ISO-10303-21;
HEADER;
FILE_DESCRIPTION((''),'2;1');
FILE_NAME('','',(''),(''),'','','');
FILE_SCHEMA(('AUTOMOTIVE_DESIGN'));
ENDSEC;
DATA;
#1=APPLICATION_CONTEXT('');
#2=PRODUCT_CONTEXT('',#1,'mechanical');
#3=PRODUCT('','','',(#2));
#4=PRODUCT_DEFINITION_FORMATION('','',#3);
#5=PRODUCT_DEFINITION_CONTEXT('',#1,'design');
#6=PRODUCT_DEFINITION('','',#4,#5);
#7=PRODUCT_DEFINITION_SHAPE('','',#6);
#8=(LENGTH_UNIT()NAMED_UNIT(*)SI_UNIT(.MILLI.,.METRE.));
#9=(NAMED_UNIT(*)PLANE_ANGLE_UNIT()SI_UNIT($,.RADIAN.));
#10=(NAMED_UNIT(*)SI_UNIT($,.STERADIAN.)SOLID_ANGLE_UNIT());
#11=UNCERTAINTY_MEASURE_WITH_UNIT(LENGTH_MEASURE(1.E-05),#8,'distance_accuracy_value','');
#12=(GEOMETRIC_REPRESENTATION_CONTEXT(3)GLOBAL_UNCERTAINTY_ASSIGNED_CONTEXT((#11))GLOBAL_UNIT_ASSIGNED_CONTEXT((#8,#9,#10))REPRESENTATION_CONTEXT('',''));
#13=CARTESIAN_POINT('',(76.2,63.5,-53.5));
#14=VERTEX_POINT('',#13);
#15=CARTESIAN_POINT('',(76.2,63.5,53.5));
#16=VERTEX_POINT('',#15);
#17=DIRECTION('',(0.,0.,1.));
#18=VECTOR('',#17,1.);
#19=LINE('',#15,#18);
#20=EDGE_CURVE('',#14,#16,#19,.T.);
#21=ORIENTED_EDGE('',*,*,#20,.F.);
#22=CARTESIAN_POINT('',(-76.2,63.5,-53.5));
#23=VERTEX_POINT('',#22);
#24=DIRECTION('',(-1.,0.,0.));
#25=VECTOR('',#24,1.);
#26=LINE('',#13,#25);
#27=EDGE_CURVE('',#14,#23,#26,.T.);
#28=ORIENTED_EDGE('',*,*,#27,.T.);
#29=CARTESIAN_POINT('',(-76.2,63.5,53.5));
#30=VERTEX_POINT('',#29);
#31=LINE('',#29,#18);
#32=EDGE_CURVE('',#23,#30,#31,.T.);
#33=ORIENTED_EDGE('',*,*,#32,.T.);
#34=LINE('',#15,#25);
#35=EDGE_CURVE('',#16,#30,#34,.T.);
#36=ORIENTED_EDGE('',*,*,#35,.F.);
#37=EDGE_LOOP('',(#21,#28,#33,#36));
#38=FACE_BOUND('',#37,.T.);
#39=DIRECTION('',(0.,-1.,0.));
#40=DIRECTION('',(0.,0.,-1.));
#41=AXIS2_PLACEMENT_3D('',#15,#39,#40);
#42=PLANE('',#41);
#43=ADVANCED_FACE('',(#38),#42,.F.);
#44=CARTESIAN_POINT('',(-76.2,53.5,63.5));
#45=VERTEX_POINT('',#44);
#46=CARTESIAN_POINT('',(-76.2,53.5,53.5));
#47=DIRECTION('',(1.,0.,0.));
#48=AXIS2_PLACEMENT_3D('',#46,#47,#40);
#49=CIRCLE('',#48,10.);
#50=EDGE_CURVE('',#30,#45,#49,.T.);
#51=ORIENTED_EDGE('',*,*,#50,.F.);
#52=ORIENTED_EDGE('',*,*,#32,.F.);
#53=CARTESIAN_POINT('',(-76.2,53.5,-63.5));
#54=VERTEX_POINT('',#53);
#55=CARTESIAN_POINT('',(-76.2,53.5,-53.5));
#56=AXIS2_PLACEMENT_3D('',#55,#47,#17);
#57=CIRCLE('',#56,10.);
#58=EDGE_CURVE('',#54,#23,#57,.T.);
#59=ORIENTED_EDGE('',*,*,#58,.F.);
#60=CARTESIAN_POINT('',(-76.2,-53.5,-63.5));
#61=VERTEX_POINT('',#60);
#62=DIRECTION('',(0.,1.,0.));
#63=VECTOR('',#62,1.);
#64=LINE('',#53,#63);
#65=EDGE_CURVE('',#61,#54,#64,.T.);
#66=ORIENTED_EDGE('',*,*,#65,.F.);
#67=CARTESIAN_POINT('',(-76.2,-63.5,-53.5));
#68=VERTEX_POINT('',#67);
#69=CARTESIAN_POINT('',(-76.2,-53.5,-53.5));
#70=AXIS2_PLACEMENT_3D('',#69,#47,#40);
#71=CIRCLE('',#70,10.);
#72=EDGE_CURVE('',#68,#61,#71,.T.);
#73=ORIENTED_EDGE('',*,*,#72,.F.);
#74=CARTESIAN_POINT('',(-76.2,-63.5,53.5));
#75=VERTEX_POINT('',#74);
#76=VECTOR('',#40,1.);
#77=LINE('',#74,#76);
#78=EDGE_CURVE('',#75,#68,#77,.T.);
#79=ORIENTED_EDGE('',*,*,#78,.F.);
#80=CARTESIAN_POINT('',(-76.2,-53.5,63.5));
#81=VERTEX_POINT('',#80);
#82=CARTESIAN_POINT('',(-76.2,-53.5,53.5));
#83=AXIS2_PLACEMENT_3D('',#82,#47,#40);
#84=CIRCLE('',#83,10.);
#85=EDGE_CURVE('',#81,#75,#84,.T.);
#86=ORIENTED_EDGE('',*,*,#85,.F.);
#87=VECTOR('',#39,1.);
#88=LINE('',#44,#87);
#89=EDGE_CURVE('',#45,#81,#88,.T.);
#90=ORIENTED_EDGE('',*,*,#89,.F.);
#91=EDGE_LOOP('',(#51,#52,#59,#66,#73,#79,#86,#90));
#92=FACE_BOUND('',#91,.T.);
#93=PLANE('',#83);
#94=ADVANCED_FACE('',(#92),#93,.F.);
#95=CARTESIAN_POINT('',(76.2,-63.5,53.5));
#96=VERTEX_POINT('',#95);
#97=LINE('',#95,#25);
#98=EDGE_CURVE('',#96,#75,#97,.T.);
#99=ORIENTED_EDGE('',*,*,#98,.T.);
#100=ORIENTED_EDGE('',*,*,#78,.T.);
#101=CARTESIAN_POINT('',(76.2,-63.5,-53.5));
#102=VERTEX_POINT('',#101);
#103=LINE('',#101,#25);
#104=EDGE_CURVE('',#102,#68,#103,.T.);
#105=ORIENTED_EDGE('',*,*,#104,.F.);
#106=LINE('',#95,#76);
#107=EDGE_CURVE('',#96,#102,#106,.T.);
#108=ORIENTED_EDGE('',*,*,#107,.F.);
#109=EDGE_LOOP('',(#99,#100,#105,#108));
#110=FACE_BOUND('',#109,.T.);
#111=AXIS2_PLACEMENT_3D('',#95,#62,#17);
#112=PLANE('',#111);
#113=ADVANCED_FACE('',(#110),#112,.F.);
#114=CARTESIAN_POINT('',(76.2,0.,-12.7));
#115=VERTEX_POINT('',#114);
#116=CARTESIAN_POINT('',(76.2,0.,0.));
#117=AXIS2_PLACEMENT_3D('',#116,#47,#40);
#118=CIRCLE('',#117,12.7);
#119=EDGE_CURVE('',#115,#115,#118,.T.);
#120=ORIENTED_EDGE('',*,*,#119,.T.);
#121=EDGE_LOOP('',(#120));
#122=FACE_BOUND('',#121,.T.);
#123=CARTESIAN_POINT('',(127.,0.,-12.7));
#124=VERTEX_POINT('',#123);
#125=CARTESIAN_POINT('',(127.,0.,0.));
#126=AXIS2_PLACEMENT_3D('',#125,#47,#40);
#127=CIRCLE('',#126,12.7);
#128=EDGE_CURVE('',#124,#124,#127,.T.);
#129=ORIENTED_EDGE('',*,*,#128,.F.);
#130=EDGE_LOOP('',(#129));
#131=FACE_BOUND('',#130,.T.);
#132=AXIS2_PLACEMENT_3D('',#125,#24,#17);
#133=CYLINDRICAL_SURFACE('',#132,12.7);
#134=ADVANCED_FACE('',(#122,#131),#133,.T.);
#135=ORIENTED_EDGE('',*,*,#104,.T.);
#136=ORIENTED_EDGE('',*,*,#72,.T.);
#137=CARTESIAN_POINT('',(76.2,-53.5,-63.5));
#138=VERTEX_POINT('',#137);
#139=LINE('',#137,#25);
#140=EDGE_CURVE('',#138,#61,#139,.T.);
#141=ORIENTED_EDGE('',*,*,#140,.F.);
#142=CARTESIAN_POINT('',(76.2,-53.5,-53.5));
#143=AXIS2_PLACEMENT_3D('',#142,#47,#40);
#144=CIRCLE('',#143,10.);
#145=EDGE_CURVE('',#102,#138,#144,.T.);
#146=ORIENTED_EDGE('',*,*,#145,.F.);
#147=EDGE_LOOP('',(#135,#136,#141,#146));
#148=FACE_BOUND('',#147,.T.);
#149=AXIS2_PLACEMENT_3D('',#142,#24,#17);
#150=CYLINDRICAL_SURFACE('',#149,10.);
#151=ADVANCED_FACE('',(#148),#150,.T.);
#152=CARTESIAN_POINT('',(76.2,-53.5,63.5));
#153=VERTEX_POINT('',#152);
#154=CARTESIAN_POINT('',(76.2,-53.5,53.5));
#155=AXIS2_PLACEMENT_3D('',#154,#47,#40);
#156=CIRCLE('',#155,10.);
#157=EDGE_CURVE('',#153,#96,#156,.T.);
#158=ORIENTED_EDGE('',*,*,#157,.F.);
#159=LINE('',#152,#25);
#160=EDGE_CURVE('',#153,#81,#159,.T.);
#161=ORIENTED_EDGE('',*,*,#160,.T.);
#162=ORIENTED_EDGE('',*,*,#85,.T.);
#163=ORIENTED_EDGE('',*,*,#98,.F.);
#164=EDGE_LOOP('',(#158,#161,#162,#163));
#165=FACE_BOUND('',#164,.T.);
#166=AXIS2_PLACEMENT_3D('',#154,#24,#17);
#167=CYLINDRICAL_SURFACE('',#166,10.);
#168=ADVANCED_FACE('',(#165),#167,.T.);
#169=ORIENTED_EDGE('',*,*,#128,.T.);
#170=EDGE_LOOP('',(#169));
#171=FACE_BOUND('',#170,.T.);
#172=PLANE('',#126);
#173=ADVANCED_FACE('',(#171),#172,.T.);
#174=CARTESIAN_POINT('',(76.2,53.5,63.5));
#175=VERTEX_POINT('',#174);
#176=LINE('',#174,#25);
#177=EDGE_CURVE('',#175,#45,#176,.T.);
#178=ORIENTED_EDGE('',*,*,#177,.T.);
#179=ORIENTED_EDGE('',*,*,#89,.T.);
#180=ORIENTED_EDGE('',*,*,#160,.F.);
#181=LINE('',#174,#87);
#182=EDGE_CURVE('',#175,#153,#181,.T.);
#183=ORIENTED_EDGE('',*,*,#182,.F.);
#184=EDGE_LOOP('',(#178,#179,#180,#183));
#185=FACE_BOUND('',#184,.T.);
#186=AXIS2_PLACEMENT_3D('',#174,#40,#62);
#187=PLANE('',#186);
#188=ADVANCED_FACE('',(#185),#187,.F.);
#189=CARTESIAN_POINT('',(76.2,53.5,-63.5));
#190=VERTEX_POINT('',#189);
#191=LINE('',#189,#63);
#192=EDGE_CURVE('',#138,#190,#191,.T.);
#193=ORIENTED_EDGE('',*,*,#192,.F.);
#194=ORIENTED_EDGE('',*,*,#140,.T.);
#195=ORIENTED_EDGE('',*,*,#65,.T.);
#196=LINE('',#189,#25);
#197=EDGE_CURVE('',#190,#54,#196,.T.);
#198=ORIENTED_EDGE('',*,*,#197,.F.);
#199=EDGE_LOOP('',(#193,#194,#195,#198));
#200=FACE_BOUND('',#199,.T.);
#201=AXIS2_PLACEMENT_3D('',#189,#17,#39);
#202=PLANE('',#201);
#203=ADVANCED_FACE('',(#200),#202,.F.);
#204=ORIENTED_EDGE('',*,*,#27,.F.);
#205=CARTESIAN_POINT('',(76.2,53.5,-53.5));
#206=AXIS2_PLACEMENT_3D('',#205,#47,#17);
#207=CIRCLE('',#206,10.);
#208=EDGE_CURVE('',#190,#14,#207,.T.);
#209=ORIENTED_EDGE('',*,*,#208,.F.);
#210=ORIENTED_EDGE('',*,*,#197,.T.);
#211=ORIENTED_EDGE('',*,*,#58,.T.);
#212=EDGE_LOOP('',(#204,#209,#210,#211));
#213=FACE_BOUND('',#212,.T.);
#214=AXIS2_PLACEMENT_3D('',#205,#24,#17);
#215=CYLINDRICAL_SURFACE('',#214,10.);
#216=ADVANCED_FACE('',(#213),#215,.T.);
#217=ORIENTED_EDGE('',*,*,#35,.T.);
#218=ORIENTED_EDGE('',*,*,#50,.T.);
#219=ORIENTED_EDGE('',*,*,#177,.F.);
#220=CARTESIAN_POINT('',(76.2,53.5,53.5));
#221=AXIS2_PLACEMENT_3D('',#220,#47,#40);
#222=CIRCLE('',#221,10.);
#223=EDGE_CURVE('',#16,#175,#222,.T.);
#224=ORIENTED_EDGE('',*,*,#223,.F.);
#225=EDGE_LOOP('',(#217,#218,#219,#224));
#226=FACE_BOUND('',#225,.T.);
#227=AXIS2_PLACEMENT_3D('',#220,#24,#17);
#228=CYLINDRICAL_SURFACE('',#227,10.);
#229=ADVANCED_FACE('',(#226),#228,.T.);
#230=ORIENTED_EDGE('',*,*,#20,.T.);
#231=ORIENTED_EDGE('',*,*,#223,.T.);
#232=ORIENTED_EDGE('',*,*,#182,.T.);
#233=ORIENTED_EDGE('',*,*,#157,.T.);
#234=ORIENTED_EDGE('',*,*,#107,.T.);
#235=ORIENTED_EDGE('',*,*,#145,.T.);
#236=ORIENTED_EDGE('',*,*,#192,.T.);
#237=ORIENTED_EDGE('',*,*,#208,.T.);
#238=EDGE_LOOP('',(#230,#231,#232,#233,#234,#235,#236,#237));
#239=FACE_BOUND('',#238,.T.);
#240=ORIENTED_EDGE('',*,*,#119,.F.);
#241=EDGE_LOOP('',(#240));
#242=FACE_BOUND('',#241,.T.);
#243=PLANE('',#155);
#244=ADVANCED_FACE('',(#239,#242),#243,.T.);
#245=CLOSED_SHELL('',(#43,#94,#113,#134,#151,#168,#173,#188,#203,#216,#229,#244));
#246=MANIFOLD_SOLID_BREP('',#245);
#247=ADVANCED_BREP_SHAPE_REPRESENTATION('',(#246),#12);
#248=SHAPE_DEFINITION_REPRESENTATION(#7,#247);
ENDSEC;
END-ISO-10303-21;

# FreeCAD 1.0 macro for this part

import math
import FreeCAD as App
import Part
import Sketcher
from FreeCAD import Vector
Q = App.Units.Quantity

doc = App.newDocument("Part")
body = doc.addObject("PartDesign::Body", "Body")

sketch1 = doc.addObject("Sketcher::SketchObject", "Sketch")
body.addObject(sketch1)
sketch1.AttachmentSupport = (doc.YZ_Plane, [""])
sketch1.MapMode = "FlatFace"
sketch1.addGeometry(Part.LineSegment(Vector(64, -54, 0), Vector(64, 54, 0)), False)
sketch1.addGeometry(Part.ArcOfCircle(Part.Circle(Vector(54, 54, 0), Vector(0, 0, 1), 10), math.radians(0), math.radians(90)), False)
sketch1.addGeometry(Part.LineSegment(Vector(54, 64, 0), Vector(-54, 64, 0)), False)
sketch1.addGeometry(Part.ArcOfCircle(Part.Circle(Vector(-54, 54, 0), Vector(0, 0, 1), 10), math.radians(90), math.radians(180)), False)
sketch1.addGeometry(Part.LineSegment(Vector(-64, 54, 0), Vector(-64, -54, 0)), False)
sketch1.addGeometry(Part.ArcOfCircle(Part.Circle(Vector(-54, -54, 0), Vector(0, 0, 1), 10), math.radians(180), math.radians(270)), False)
sketch1.addGeometry(Part.LineSegment(Vector(-54, -64, 0), Vector(54, -64, 0)), False)
sketch1.addGeometry(Part.ArcOfCircle(Part.Circle(Vector(54, -54, 0), Vector(0, 0, 1), 10), math.radians(-90), math.radians(0)), False)
sketch1.addConstraint(Sketcher.Constraint("Tangent", 0, 2, 1, 1))
sketch1.addConstraint(Sketcher.Constraint("Tangent", 1, 2, 2, 1))
sketch1.addConstraint(Sketcher.Constraint("Tangent", 2, 2, 3, 1))
sketch1.addConstraint(Sketcher.Constraint("Tangent", 3, 2, 4, 1))
sketch1.addConstraint(Sketcher.Constraint("Tangent", 4, 2, 5, 1))
sketch1.addConstraint(Sketcher.Constraint("Tangent", 5, 2, 6, 1))
sketch1.addConstraint(Sketcher.Constraint("Tangent", 6, 2, 7, 1))
sketch1.addConstraint(Sketcher.Constraint("Tangent", 7, 2, 0, 1))
sketch1.addConstraint(Sketcher.Constraint("Vertical", 0))
sketch1.addConstraint(Sketcher.Constraint("Horizontal", 2))
sketch1.addConstraint(Sketcher.Constraint("Vertical", 4))
sketch1.addConstraint(Sketcher.Constraint("Horizontal", 6))
sketch1.addConstraint(Sketcher.Constraint("Equal", 1, 3))
sketch1.addConstraint(Sketcher.Constraint("Equal", 3, 5))
sketch1.addConstraint(Sketcher.Constraint("Equal", 5, 7))
sketch1.addConstraint(Sketcher.Constraint("Symmetric", 1, 3, 5, 3, -1, 1))
sketch1.addConstraint(Sketcher.Constraint("Equal", 6, 0))
sketch1.addConstraint(Sketcher.Constraint("DistanceX", -1, 1, 0, 2, Q("2.5 in")))
sketch1.addConstraint(Sketcher.Constraint("Radius", 1, Q("10 mm")))
pad1 = doc.addObject("PartDesign::Pad", "Pad")
body.addObject(pad1)
pad1.Profile = sketch1
pad1.Length = Q("6 in")
pad1.Midplane = True

sketch2 = doc.addObject("Sketcher::SketchObject", "Sketch001")
body.addObject(sketch2)
sketch2.AttachmentSupport = (doc.YZ_Plane, [""])
sketch2.MapMode = "FlatFace"
sketch2.AttachmentOffset = App.Placement(Vector(0, 0, 3 * 25.4), App.Rotation())
sketch2.addGeometry(Part.Circle(Vector(0, 0, 0), Vector(0, 0, 1), 13), False)
sketch2.addConstraint(Sketcher.Constraint("Coincident", 0, 3, -1, 1))
sketch2.addConstraint(Sketcher.Constraint("Diameter", 0, Q("1 in")))
pad2 = doc.addObject("PartDesign::Pad", "Pad001")
body.addObject(pad2)
pad2.Profile = sketch2
pad2.Length = Q("2 in")

doc.recompute()
